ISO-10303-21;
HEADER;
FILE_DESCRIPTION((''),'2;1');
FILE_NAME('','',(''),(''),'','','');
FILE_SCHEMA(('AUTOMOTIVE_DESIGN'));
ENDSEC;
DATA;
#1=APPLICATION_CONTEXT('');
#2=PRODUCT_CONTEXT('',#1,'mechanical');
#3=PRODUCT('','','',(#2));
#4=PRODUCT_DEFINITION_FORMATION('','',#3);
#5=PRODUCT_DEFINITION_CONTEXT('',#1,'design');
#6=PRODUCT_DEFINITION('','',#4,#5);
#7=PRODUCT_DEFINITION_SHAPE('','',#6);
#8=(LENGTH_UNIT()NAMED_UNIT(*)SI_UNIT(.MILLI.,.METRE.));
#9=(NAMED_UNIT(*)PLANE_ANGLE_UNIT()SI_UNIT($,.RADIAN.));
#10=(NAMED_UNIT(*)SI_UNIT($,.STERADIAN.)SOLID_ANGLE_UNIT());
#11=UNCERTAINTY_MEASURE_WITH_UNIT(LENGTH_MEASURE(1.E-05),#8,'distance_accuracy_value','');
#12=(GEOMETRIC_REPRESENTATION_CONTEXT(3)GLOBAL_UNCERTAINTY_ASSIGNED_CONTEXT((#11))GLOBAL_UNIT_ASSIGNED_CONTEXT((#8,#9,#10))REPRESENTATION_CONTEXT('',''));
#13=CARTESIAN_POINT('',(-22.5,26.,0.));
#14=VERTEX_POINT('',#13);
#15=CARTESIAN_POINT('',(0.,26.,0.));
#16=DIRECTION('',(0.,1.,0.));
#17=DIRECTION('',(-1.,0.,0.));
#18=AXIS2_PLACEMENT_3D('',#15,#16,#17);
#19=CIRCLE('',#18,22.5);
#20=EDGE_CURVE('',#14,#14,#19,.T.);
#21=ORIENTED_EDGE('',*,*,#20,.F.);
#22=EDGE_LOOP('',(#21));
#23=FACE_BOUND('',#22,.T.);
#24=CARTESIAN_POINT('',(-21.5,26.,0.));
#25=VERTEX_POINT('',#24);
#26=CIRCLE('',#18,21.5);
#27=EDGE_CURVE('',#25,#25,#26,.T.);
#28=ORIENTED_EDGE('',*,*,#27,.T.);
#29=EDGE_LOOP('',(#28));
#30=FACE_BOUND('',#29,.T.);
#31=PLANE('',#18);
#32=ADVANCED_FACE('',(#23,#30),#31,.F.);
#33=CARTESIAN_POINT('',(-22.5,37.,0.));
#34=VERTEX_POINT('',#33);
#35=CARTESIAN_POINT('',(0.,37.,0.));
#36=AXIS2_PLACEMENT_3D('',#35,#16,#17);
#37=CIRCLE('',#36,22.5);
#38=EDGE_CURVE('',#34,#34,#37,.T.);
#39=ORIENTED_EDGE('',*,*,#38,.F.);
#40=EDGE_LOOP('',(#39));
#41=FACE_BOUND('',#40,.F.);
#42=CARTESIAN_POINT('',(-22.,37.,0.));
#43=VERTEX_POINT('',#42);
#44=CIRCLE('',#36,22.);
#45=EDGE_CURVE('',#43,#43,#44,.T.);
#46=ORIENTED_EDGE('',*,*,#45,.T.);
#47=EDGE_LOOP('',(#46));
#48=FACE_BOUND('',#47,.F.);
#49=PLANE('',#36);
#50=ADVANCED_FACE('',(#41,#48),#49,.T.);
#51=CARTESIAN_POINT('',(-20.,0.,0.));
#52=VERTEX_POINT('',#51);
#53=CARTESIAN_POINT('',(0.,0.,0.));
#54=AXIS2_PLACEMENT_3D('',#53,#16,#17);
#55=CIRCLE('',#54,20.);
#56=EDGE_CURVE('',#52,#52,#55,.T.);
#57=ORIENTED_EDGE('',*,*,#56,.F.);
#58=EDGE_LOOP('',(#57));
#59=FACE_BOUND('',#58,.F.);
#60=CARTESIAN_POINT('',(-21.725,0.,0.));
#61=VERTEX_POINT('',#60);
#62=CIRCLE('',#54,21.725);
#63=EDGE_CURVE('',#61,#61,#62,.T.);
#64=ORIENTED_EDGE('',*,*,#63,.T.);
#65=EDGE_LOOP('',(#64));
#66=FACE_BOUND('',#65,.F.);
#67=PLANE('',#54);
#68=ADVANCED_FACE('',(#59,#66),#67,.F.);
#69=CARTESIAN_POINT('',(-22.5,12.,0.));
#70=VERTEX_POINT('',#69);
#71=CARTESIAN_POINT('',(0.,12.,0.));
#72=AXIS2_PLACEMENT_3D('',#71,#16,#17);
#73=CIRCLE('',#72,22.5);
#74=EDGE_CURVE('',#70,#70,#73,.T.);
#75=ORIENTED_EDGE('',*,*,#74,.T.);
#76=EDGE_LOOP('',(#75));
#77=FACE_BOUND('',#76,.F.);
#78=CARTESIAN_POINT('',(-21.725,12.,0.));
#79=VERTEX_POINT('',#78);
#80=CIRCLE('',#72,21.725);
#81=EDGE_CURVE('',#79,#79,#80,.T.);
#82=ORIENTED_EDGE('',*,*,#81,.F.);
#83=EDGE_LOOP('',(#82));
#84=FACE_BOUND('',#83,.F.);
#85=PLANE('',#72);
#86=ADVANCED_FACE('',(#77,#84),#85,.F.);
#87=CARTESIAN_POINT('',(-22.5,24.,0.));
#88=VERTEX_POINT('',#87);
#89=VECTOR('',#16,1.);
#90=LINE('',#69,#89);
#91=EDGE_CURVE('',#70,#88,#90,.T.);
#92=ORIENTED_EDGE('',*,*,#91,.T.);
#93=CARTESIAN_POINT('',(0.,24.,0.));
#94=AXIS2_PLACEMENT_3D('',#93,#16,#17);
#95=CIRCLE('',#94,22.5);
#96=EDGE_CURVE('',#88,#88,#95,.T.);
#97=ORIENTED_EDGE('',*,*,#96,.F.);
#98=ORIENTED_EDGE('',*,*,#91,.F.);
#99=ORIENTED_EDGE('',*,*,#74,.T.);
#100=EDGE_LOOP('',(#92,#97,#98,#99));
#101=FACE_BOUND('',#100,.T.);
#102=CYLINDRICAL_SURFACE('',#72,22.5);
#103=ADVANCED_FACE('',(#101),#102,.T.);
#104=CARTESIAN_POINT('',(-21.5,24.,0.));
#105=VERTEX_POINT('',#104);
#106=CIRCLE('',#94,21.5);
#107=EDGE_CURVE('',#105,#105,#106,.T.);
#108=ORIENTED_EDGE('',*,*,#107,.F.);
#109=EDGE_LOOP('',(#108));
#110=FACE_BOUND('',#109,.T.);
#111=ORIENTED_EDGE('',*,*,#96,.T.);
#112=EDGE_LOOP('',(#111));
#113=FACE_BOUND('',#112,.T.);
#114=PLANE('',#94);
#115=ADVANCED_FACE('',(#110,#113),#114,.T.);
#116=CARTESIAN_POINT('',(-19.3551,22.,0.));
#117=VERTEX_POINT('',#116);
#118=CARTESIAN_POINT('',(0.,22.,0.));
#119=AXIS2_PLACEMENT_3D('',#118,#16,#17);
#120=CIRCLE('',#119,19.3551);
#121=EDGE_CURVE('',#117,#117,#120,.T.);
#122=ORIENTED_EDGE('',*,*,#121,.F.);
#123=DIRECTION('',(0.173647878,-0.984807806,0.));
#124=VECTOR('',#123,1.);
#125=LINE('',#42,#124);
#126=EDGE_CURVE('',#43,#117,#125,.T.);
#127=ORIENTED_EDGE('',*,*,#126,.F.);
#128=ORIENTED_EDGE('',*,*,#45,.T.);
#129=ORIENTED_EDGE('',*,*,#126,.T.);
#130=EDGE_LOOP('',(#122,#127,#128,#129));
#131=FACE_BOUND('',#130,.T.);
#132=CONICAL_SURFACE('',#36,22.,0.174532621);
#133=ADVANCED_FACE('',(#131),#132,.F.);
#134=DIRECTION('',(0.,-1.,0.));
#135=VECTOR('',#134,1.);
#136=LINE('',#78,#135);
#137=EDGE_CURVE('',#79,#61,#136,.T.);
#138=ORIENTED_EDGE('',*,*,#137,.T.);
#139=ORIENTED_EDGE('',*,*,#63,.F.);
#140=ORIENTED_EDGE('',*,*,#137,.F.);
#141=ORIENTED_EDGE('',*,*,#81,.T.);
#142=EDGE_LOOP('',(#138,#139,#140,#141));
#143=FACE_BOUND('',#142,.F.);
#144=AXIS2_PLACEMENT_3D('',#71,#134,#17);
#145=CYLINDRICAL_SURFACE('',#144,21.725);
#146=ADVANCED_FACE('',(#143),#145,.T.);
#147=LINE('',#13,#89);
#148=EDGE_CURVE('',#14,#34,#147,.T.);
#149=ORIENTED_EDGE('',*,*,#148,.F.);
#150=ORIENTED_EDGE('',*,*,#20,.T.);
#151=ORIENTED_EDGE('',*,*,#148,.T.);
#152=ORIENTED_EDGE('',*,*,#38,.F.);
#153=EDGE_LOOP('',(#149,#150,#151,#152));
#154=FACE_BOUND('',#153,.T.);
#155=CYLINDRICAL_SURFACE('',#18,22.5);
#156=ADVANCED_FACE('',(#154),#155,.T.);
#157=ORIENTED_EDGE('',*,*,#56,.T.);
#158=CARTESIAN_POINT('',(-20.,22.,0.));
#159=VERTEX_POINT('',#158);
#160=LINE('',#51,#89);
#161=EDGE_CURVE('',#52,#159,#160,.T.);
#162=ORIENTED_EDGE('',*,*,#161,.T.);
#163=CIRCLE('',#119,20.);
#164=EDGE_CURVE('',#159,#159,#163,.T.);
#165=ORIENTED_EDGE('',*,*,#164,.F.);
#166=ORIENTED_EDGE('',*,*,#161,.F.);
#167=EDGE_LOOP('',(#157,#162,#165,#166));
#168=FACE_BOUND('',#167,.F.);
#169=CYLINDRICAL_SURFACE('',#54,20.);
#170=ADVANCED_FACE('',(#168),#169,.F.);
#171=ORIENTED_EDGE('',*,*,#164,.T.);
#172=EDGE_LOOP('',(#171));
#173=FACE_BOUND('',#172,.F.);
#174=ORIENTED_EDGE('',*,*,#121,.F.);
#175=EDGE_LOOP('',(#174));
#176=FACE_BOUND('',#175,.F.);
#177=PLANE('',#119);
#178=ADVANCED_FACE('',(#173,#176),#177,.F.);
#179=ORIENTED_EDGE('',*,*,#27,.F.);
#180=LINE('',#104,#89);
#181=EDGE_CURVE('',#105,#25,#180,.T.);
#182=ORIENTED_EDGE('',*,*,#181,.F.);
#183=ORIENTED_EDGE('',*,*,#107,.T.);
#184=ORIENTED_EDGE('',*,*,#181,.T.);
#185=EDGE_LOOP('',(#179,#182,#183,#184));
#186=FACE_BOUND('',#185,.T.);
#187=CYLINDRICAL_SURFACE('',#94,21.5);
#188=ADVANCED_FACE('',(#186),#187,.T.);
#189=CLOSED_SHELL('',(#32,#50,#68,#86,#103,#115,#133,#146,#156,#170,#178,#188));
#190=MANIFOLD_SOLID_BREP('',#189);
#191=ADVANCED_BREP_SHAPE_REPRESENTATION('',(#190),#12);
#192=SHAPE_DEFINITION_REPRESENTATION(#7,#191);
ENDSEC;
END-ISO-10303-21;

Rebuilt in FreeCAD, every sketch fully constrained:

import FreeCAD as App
import Part
import Sketcher
Q = App.Units.Quantity

doc = App.newDocument("Part")
body = doc.addObject("PartDesign::Body", "Body")

# Sketch on XY plane
sketch1 = body.newObject("Sketcher::SketchObject", "Sketch")
sketch1.AttachmentSupport = (doc.getObject("XY_Plane"), [""])
sketch1.MapMode = "FlatFace"
sketch1.addGeometry([
    Part.LineSegment(App.Vector(-19.4, 22, 0), App.Vector(-22, 37, 0)),  # 0
    Part.LineSegment(App.Vector(-22, 37, 0), App.Vector(-22.5, 37, 0)),  # 1
    Part.LineSegment(App.Vector(-22.5, 37, 0), App.Vector(-22.5, 26, 0)),  # 2
    Part.LineSegment(App.Vector(-22.5, 26, 0), App.Vector(-21.5, 26, 0)),  # 3
    Part.LineSegment(App.Vector(-21.5, 26, 0), App.Vector(-21.5, 24, 0)),  # 4
    Part.LineSegment(App.Vector(-21.5, 24, 0), App.Vector(-22.5, 24, 0)),  # 5
    Part.LineSegment(App.Vector(-22.5, 24, 0), App.Vector(-22.5, 12, 0)),  # 6
    Part.LineSegment(App.Vector(-22.5, 12, 0), App.Vector(-21.7, 12, 0)),  # 7
    Part.LineSegment(App.Vector(-21.7, 12, 0), App.Vector(-21.7, 0, 0)),  # 8
    Part.LineSegment(App.Vector(-21.7, 0, 0), App.Vector(-20, 0, 0)),  # 9
    Part.LineSegment(App.Vector(-20, 0, 0), App.Vector(-20, 22, 0)),  # 10
    Part.LineSegment(App.Vector(-20, 22, 0), App.Vector(-19.4, 22, 0)),  # 11
], False)
sketch1.addConstraint([
    Sketcher.Constraint("Coincident", 0, 2, 1, 1),
    Sketcher.Constraint("Coincident", 1, 2, 2, 1),
    Sketcher.Constraint("Coincident", 2, 2, 3, 1),
    Sketcher.Constraint("Coincident", 3, 2, 4, 1),
    Sketcher.Constraint("Coincident", 4, 2, 5, 1),
    Sketcher.Constraint("Coincident", 5, 2, 6, 1),
    Sketcher.Constraint("Coincident", 6, 2, 7, 1),
    Sketcher.Constraint("Coincident", 7, 2, 8, 1),
    Sketcher.Constraint("Coincident", 8, 2, 9, 1),
    Sketcher.Constraint("Coincident", 9, 2, 10, 1),
    Sketcher.Constraint("Coincident", 10, 2, 11, 1),
    Sketcher.Constraint("Coincident", 11, 2, 0, 1),
    Sketcher.Constraint("Horizontal", 1),
    Sketcher.Constraint("Vertical", 2),
    Sketcher.Constraint("Horizontal", 3),
    Sketcher.Constraint("Vertical", 4),
    Sketcher.Constraint("Horizontal", 5),
    Sketcher.Constraint("Vertical", 6),
    Sketcher.Constraint("Horizontal", 7),
    Sketcher.Constraint("Vertical", 8),
    Sketcher.Constraint("Horizontal", 9),
    Sketcher.Constraint("Vertical", 10),
    Sketcher.Constraint("Horizontal", 11),
    Sketcher.Constraint("PointOnObject", 8, 2, -1),
    Sketcher.Constraint("Vertical", 2, 2, 5, 2),
    Sketcher.Constraint("Equal", 6, 8),
    Sketcher.Constraint("DistanceX", 3, 1, 3, 2, Q("1 mm")),
    Sketcher.Constraint("DistanceY", 2, 2, 2, 1, Q("11 mm")),
    Sketcher.Constraint("DistanceY", 4, 2, 4, 1, Q("2 mm")),
    Sketcher.Constraint("DistanceY", 6, 2, 6, 1, Q("12 mm")),
    Sketcher.Constraint("DistanceX", 1, 2, 1, 1, Q("0.5 mm")),
    Sketcher.Constraint("DistanceX", 9, 2, -1, 1, Q("20 mm")),
    Sketcher.Constraint("DistanceY", 10, 2, 4, 2, Q("2 mm")),
    Sketcher.Constraint("DistanceX", 1, 2, -1, 1, Q("22.5 mm")),
    Sketcher.Constraint("Angle", 0, Q("100 deg")),
    Sketcher.Constraint("DistanceX", 7, 1, 7, 2, Q("0.775 mm")),
])
revolution = body.newObject("PartDesign::Revolution", "Revolution")
revolution.Profile = sketch1
revolution.ReferenceAxis = (sketch1, ["V_Axis"])
revolution.Angle = 360

doc.recompute()
